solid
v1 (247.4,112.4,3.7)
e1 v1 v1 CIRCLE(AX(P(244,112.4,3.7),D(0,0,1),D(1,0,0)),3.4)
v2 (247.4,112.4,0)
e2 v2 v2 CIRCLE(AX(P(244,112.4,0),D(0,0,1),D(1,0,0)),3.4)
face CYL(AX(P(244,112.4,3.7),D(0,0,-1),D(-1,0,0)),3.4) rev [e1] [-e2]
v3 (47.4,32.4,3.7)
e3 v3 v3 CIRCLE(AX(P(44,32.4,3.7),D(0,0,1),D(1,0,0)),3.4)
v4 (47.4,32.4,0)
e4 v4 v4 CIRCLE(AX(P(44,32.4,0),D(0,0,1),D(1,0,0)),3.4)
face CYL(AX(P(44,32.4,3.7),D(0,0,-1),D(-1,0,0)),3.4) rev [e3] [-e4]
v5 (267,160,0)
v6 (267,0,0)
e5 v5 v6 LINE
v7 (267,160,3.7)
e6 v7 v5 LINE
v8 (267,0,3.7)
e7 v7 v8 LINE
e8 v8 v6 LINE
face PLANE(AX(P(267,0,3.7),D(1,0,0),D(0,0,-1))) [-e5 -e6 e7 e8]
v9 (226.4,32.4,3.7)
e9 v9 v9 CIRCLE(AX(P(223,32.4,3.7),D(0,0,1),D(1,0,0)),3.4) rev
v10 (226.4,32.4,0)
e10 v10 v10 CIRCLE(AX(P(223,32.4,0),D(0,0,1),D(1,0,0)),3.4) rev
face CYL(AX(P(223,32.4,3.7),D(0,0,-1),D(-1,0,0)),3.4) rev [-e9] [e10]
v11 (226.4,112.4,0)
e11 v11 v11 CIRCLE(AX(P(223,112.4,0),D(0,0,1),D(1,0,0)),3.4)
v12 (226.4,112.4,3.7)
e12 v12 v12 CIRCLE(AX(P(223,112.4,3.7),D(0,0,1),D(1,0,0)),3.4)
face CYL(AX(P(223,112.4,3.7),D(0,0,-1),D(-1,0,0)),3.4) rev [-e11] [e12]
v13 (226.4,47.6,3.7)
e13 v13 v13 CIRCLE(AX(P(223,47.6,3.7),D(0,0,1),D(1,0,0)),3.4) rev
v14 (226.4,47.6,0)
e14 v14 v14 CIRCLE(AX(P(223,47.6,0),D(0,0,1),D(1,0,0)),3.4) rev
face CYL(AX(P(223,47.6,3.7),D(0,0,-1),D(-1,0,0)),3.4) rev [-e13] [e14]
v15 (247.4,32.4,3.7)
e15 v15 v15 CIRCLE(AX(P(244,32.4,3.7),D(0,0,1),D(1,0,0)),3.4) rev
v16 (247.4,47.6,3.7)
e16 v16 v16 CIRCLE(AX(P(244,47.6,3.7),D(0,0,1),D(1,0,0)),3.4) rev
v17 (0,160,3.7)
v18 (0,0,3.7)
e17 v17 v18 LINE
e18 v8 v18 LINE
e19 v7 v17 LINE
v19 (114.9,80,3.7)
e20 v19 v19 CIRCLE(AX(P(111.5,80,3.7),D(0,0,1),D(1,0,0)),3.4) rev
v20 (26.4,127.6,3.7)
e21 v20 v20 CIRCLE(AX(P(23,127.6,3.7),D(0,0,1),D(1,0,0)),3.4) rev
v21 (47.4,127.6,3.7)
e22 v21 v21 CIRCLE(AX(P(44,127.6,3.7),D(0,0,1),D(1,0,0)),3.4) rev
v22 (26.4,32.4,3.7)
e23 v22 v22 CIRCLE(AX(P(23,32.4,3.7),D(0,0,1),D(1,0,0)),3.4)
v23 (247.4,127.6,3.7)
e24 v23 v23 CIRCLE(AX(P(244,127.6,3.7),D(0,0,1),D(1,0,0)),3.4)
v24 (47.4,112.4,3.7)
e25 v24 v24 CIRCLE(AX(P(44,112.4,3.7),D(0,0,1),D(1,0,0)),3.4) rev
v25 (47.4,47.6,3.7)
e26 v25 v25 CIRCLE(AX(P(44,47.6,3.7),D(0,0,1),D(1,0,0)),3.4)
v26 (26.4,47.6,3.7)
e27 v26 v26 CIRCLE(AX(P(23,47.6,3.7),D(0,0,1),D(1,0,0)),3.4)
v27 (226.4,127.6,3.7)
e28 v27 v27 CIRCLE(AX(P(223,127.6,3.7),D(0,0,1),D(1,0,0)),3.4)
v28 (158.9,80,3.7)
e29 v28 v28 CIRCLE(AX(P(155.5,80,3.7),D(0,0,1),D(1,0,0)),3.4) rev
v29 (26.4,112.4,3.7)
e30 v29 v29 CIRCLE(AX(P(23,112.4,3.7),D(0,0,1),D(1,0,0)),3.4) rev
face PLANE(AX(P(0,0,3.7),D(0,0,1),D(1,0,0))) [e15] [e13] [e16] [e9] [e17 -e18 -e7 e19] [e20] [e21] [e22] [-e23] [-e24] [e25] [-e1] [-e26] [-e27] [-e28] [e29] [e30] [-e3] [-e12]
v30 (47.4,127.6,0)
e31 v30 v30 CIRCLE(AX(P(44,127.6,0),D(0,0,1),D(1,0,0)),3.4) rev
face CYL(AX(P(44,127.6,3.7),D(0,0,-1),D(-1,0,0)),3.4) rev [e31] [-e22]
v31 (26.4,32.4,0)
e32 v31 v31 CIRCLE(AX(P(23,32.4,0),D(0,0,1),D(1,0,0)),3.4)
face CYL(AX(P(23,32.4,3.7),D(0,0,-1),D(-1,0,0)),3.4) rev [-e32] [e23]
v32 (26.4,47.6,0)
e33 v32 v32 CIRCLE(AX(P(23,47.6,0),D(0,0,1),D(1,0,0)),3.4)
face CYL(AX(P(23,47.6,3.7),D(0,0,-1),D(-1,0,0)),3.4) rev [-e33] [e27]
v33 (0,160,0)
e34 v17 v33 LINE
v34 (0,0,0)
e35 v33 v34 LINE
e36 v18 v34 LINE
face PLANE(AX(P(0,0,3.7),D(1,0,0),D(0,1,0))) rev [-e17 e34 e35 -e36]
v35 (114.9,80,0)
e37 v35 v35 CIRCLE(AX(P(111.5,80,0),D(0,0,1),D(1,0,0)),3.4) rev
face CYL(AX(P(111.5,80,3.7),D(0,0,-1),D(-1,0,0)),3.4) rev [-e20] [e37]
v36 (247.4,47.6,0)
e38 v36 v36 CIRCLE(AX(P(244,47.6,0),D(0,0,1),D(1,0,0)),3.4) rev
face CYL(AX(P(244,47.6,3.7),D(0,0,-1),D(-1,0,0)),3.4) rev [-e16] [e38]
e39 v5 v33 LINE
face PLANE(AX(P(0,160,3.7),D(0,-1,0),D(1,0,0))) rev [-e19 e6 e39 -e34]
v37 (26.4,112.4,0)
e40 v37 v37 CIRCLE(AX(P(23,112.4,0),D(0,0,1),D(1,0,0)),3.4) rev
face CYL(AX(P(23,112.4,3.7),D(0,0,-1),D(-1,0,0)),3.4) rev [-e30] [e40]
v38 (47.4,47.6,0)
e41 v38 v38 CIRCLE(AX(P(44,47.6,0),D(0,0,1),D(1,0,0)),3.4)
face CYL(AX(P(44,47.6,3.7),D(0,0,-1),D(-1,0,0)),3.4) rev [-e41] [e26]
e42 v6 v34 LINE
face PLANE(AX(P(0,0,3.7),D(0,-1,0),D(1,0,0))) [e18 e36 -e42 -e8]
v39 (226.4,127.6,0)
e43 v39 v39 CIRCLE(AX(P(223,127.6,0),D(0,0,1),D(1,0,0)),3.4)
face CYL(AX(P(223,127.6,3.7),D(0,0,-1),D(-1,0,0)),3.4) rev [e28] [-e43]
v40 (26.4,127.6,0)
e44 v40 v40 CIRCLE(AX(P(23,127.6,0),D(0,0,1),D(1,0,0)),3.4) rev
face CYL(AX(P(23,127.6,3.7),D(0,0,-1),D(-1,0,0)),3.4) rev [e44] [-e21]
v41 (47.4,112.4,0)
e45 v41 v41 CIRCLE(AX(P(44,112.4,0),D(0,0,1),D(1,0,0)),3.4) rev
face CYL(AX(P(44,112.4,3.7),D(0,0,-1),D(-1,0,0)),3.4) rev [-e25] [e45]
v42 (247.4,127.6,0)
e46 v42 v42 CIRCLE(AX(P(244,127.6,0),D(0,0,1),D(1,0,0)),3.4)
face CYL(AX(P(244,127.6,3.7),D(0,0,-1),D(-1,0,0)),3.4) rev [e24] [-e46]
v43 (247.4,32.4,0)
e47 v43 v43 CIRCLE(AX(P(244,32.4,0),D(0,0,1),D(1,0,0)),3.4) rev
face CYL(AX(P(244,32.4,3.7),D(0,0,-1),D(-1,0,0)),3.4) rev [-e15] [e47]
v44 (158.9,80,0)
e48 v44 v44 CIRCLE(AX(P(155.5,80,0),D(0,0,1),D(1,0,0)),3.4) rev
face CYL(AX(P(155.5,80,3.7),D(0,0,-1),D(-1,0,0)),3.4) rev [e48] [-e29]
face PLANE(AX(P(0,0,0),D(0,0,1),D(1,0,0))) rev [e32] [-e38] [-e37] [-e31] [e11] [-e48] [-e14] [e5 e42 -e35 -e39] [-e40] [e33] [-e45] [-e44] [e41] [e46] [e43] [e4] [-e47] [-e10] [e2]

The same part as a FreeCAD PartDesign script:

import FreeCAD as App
import Part
import Sketcher
Q = App.Units.Quantity


def add_polygon(sketch, points):
    """Adds a closed chain of lines whose ends are joined by coincident constraints."""
    first, n = sketch.GeometryCount, len(points)
    for a, b in zip(points, points[1:] + points[:1]):
        sketch.addGeometry(Part.LineSegment(App.Vector(*a, 0), App.Vector(*b, 0)), False)
    for i in range(n):
        sketch.addConstraint(Sketcher.Constraint("Coincident", first + i, 2, first + (i + 1) % n, 1))

doc = App.newDocument("Part")
body = doc.addObject("PartDesign::Body", "Body")

# Sketch on XY plane
sketch1 = body.newObject("Sketcher::SketchObject", "Sketch")
sketch1.AttachmentSupport = (doc.getObject("XY_Plane"), [""])
sketch1.MapMode = "FlatFace"
add_polygon(sketch1, [(0, 160), (0, 0), (267, 0), (267, 160)])  # lines 0-3
sketch1.addGeometry(Part.Circle(App.Vector(23, 32.4, 0), App.Vector(0, 0, 1), 3.4), False)  # 4
sketch1.addGeometry(Part.Circle(App.Vector(44, 32.4, 0), App.Vector(0, 0, 1), 3.4), False)  # 5
sketch1.addGeometry(Part.Circle(App.Vector(23, 47.6, 0), App.Vector(0, 0, 1), 3.4), False)  # 6
sketch1.addGeometry(Part.Circle(App.Vector(44, 47.6, 0), App.Vector(0, 0, 1), 3.4), False)  # 7
sketch1.addGeometry(Part.Circle(App.Vector(223, 32.4, 0), App.Vector(0, 0, 1), 3.4), False)  # 8
sketch1.addGeometry(Part.Circle(App.Vector(244, 32.4, 0), App.Vector(0, 0, 1), 3.4), False)  # 9
sketch1.addGeometry(Part.Circle(App.Vector(223, 47.6, 0), App.Vector(0, 0, 1), 3.4), False)  # 10
sketch1.addGeometry(Part.Circle(App.Vector(244, 47.6, 0), App.Vector(0, 0, 1), 3.4), False)  # 11
sketch1.addGeometry(Part.Circle(App.Vector(111.5, 80, 0), App.Vector(0, 0, 1), 3.4), False)  # 12
sketch1.addGeometry(Part.Circle(App.Vector(23, 112.4, 0), App.Vector(0, 0, 1), 3.4), False)  # 13
sketch1.addGeometry(Part.Circle(App.Vector(44, 112.4, 0), App.Vector(0, 0, 1), 3.4), False)  # 14
sketch1.addGeometry(Part.Circle(App.Vector(23, 127.6, 0), App.Vector(0, 0, 1), 3.4), False)  # 15
sketch1.addGeometry(Part.Circle(App.Vector(44, 127.6, 0), App.Vector(0, 0, 1), 3.4), False)  # 16
sketch1.addGeometry(Part.Circle(App.Vector(155.5, 80, 0), App.Vector(0, 0, 1), 3.4), False)  # 17
sketch1.addGeometry(Part.Circle(App.Vector(223, 112.4, 0), App.Vector(0, 0, 1), 3.4), False)  # 18
sketch1.addGeometry(Part.Circle(App.Vector(244, 112.4, 0), App.Vector(0, 0, 1), 3.4), False)  # 19
sketch1.addGeometry(Part.Circle(App.Vector(223, 127.6, 0), App.Vector(0, 0, 1), 3.4), False)  # 20
sketch1.addGeometry(Part.Circle(App.Vector(244, 127.6, 0), App.Vector(0, 0, 1), 3.4), False)  # 21
sketch1.addConstraint(Sketcher.Constraint("Vertical", 0))
sketch1.addConstraint(Sketcher.Constraint("Horizontal", 1))
sketch1.addConstraint(Sketcher.Constraint("Vertical", 2))
sketch1.addConstraint(Sketcher.Constraint("Horizontal", 3))
sketch1.addConstraint(Sketcher.Constraint("Coincident", 0, 2, -1, 1))
sketch1.addConstraint(Sketcher.Constraint("Equal", 4, 5))
sketch1.addConstraint(Sketcher.Constraint("Equal", 5, 6))
sketch1.addConstraint(Sketcher.Constraint("Equal", 6, 7))
sketch1.addConstraint(Sketcher.Constraint("Equal", 7, 8))
sketch1.addConstraint(Sketcher.Constraint("Equal", 8, 9))
sketch1.addConstraint(Sketcher.Constraint("Equal", 9, 10))
sketch1.addConstraint(Sketcher.Constraint("Equal", 10, 11))
sketch1.addConstraint(Sketcher.Constraint("Equal", 11, 12))
sketch1.addConstraint(Sketcher.Constraint("Equal", 12, 13))
sketch1.addConstraint(Sketcher.Constraint("Equal", 13, 14))
sketch1.addConstraint(Sketcher.Constraint("Equal", 14, 15))
sketch1.addConstraint(Sketcher.Constraint("Equal", 15, 16))
sketch1.addConstraint(Sketcher.Constraint("Equal", 16, 17))
sketch1.addConstraint(Sketcher.Constraint("Equal", 17, 18))
sketch1.addConstraint(Sketcher.Constraint("Equal", 18, 19))
sketch1.addConstraint(Sketcher.Constraint("Equal", 19, 20))
sketch1.addConstraint(Sketcher.Constraint("Equal", 20, 21))
sketch1.addConstraint(Sketcher.Constraint("Horizontal", 4, 3, 5, 3))
sketch1.addConstraint(Sketcher.Constraint("Horizontal", 6, 3, 7, 3))
sketch1.addConstraint(Sketcher.Constraint("Horizontal", 5, 3, 8, 3))
sketch1.addConstraint(Sketcher.Constraint("Horizontal", 8, 3, 9, 3))
sketch1.addConstraint(Sketcher.Constraint("Horizontal", 7, 3, 10, 3))
sketch1.addConstraint(Sketcher.Constraint("Horizontal", 10, 3, 11, 3))
sketch1.addConstraint(Sketcher.Constraint("Horizontal", 13, 3, 14, 3))
sketch1.addConstraint(Sketcher.Constraint("Horizontal", 15, 3, 16, 3))
sketch1.addConstraint(Sketcher.Constraint("Horizontal", 12, 3, 17, 3))
sketch1.addConstraint(Sketcher.Constraint("Horizontal", 14, 3, 18, 3))
sketch1.addConstraint(Sketcher.Constraint("Horizontal", 18, 3, 19, 3))
sketch1.addConstraint(Sketcher.Constraint("Horizontal", 16, 3, 20, 3))
sketch1.addConstraint(Sketcher.Constraint("Horizontal", 20, 3, 21, 3))
sketch1.addConstraint(Sketcher.Constraint("Vertical", 4, 3, 6, 3))
sketch1.addConstraint(Sketcher.Constraint("Vertical", 5, 3, 7, 3))
sketch1.addConstraint(Sketcher.Constraint("Vertical", 8, 3, 10, 3))
sketch1.addConstraint(Sketcher.Constraint("Vertical", 9, 3, 11, 3))
sketch1.addConstraint(Sketcher.Constraint("Vertical", 6, 3, 13, 3))
sketch1.addConstraint(Sketcher.Constraint("Vertical", 7, 3, 14, 3))
sketch1.addConstraint(Sketcher.Constraint("Vertical", 13, 3, 15, 3))
sketch1.addConstraint(Sketcher.Constraint("Vertical", 14, 3, 16, 3))
sketch1.addConstraint(Sketcher.Constraint("Vertical", 10, 3, 18, 3))
sketch1.addConstraint(Sketcher.Constraint("Vertical", 11, 3, 19, 3))
sketch1.addConstraint(Sketcher.Constraint("Vertical", 18, 3, 20, 3))
sketch1.addConstraint(Sketcher.Constraint("Vertical", 19, 3, 21, 3))
sketch1.addConstraint(Sketcher.Constraint("Diameter", 4, Q("6.8 mm")))
sketch1.addConstraint(Sketcher.Constraint("DistanceX", 1, 1, 1, 2, Q("267 mm")))
sketch1.addConstraint(Sketcher.Constraint("DistanceY", 0, 2, 0, 1, Q("160 mm")))
sketch1.addConstraint(Sketcher.Constraint("DistanceX", -1, 1, 4, 3, Q("23 mm")))
sketch1.addConstraint(Sketcher.Constraint("DistanceX", -1, 1, 5, 3, Q("44 mm")))
sketch1.addConstraint(Sketcher.Constraint("DistanceX", -1, 1, 8, 3, Q("223 mm")))
sketch1.addConstraint(Sketcher.Constraint("DistanceX", -1, 1, 9, 3, Q("244 mm")))
sketch1.addConstraint(Sketcher.Constraint("DistanceY", -1, 1, 12, 3, Q("80 mm")))
sketch1.addConstraint(Sketcher.Constraint("DistanceY", 4, 3, 13, 3, Q("80 mm")))
sketch1.addConstraint(Sketcher.Constraint("DistanceY", 6, 3, 15, 3, Q("80 mm")))
sketch1.addConstraint(Sketcher.Constraint("DistanceX", 12, 3, 17, 3, Q("44 mm")))
sketch1.addConstraint(Sketcher.Constraint("DistanceY", -1, 1, 4, 3, Q("32.4 mm")))
sketch1.addConstraint(Sketcher.Constraint("DistanceY", -1, 1, 6, 3, Q("47.6 mm")))
sketch1.addConstraint(Sketcher.Constraint("DistanceX", -1, 1, 12, 3, Q("111.5 mm")))
pad1 = body.newObject("PartDesign::Pad", "Pad")
pad1.Profile = sketch1
pad1.Length = 3.7

doc.recompute()
